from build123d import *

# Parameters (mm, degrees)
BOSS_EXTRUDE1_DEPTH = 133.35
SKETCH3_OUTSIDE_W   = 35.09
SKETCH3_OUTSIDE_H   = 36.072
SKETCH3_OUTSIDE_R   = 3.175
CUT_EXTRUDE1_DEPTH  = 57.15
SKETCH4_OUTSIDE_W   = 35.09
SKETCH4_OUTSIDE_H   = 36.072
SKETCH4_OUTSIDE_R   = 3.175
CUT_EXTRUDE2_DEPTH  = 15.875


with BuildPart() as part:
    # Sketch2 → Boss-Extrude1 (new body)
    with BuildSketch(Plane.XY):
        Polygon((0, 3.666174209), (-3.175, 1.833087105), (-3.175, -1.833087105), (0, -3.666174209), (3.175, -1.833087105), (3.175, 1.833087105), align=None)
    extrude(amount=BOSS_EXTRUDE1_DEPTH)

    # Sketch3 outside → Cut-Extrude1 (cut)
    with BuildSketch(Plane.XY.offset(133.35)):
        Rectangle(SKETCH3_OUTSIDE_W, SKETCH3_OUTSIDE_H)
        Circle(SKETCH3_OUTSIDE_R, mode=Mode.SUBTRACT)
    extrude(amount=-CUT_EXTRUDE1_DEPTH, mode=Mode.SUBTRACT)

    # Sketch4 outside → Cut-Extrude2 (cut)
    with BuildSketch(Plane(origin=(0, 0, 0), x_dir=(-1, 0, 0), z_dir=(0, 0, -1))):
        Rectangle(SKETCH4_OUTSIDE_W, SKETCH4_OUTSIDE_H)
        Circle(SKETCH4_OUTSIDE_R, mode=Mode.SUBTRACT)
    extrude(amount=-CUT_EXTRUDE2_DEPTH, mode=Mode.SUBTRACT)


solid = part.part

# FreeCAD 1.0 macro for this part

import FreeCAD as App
import Part
import Sketcher

V = App.Vector
Q = App.Units.Quantity


def add_polygon(sketch, points):
    """Adds a closed chain of lines whose ends are joined by coincident constraints."""
    first, n = sketch.GeometryCount, len(points)
    for a, b in zip(points, points[1:] + points[:1]):
        sketch.addGeometry(Part.LineSegment(App.Vector(*a, 0), App.Vector(*b, 0)), False)
    for i in range(n):
        sketch.addConstraint(Sketcher.Constraint("Coincident", first + i, 2, first + (i + 1) % n, 1))

doc = App.newDocument("Part")
body = doc.addObject("PartDesign::Body", "Body")

# Sketch on XY plane
sketch1 = body.newObject("Sketcher::SketchObject", "Sketch")
sketch1.AttachmentSupport = (doc.getObject("XY_Plane"), [""])
sketch1.MapMode = "FlatFace"
add_polygon(sketch1, [(0, 3.666174), (-3.175, 1.833087), (-3.175, -1.833087), (0, -3.666174), (3.175, -1.833087), (3.175, 1.833087)])  # lines 0-5
sketch1.addConstraint([
    Sketcher.Constraint("Vertical", 1),
    Sketcher.Constraint("Vertical", 4),
    Sketcher.Constraint("Symmetric", 0, 2, 3, 2, -1, 1),
    Sketcher.Constraint("Symmetric", 2, 2, 5, 2, -1, 1),
    Sketcher.Constraint("PointOnObject", 2, 2, -2),
    Sketcher.Constraint("Parallel", 2, 5),
    Sketcher.Constraint("Horizontal", 1, 2, 3, 2),
    Sketcher.Constraint("Angle", 0, Q("-150 deg")),
    Sketcher.Constraint("DistanceX", 1, 2, 3, 2, Q("0.25 in")),
    Sketcher.Constraint("DistanceY", 1, 2, 1, 1, 3.666174),
])
pad1 = body.newObject("PartDesign::Pad", "Pad")
pad1.Profile = sketch1
pad1.Length = Q("5.25 in")

# Sketch on XY plane
sketch2 = body.newObject("Sketcher::SketchObject", "Sketch001")
sketch2.AttachmentSupport = (doc.getObject("XY_Plane"), [""])
sketch2.MapMode = "FlatFace"
sketch2.AttachmentOffset = App.Placement(V(0, 0, 5.25 * 25.4), App.Rotation())
add_polygon(sketch2, [(-17.545, 18.036), (-17.545, -18.036), (17.545, -18.036), (17.545, 18.036)])  # lines 0-3
sketch2.addGeometry(Part.Circle(V(0, 0, 0), V(0, 0, 1), 3.175), False)  # 4
sketch2.addConstraint([
    Sketcher.Constraint("Vertical", 0),
    Sketcher.Constraint("Horizontal", 1),
    Sketcher.Constraint("Vertical", 2),
    Sketcher.Constraint("Horizontal", 3),
    Sketcher.Constraint("Coincident", 4, 3, -1, 1),
    Sketcher.Constraint("Symmetric", 0, 2, 2, 2, -1, 1),
    Sketcher.Constraint("Diameter", 4, Q("0.25 in")),
    Sketcher.Constraint("DistanceX", 1, 1, 1, 2, 35.09),
    Sketcher.Constraint("DistanceY", 0, 2, 0, 1, 36.072),
])
pocket1 = body.newObject("PartDesign::Pocket", "Pocket")
pocket1.Profile = sketch2
pocket1.Length = Q("2.25 in")

# Sketch on XY plane
sketch3 = body.newObject("Sketcher::SketchObject", "Sketch002")
sketch3.AttachmentSupport = (doc.getObject("XY_Plane"), [""])
sketch3.MapMode = "FlatFace"
add_polygon(sketch3, [(17.545, 18.036), (17.545, -18.036), (-17.545, -18.036), (-17.545, 18.036)])  # lines 0-3
sketch3.addGeometry(Part.Circle(V(0, 0, 0), V(0, 0, 1), 3.175), False)  # 4
sketch3.addConstraint([
    Sketcher.Constraint("Vertical", 0),
    Sketcher.Constraint("Horizontal", 1),
    Sketcher.Constraint("Vertical", 2),
    Sketcher.Constraint("Horizontal", 3),
    Sketcher.Constraint("Coincident", 4, 3, -1, 1),
    Sketcher.Constraint("Symmetric", 0, 2, 2, 2, -1, 1),
    Sketcher.Constraint("Diameter", 4, Q("0.25 in")),
    Sketcher.Constraint("DistanceX", 1, 2, 1, 1, 35.09),
    Sketcher.Constraint("DistanceY", 0, 2, 0, 1, 36.072),
])
pocket2 = body.newObject("PartDesign::Pocket", "Pocket001")
pocket2.Profile = sketch3
pocket2.Length = Q("0.625 in")
pocket2.Reversed = True

doc.recompute()
